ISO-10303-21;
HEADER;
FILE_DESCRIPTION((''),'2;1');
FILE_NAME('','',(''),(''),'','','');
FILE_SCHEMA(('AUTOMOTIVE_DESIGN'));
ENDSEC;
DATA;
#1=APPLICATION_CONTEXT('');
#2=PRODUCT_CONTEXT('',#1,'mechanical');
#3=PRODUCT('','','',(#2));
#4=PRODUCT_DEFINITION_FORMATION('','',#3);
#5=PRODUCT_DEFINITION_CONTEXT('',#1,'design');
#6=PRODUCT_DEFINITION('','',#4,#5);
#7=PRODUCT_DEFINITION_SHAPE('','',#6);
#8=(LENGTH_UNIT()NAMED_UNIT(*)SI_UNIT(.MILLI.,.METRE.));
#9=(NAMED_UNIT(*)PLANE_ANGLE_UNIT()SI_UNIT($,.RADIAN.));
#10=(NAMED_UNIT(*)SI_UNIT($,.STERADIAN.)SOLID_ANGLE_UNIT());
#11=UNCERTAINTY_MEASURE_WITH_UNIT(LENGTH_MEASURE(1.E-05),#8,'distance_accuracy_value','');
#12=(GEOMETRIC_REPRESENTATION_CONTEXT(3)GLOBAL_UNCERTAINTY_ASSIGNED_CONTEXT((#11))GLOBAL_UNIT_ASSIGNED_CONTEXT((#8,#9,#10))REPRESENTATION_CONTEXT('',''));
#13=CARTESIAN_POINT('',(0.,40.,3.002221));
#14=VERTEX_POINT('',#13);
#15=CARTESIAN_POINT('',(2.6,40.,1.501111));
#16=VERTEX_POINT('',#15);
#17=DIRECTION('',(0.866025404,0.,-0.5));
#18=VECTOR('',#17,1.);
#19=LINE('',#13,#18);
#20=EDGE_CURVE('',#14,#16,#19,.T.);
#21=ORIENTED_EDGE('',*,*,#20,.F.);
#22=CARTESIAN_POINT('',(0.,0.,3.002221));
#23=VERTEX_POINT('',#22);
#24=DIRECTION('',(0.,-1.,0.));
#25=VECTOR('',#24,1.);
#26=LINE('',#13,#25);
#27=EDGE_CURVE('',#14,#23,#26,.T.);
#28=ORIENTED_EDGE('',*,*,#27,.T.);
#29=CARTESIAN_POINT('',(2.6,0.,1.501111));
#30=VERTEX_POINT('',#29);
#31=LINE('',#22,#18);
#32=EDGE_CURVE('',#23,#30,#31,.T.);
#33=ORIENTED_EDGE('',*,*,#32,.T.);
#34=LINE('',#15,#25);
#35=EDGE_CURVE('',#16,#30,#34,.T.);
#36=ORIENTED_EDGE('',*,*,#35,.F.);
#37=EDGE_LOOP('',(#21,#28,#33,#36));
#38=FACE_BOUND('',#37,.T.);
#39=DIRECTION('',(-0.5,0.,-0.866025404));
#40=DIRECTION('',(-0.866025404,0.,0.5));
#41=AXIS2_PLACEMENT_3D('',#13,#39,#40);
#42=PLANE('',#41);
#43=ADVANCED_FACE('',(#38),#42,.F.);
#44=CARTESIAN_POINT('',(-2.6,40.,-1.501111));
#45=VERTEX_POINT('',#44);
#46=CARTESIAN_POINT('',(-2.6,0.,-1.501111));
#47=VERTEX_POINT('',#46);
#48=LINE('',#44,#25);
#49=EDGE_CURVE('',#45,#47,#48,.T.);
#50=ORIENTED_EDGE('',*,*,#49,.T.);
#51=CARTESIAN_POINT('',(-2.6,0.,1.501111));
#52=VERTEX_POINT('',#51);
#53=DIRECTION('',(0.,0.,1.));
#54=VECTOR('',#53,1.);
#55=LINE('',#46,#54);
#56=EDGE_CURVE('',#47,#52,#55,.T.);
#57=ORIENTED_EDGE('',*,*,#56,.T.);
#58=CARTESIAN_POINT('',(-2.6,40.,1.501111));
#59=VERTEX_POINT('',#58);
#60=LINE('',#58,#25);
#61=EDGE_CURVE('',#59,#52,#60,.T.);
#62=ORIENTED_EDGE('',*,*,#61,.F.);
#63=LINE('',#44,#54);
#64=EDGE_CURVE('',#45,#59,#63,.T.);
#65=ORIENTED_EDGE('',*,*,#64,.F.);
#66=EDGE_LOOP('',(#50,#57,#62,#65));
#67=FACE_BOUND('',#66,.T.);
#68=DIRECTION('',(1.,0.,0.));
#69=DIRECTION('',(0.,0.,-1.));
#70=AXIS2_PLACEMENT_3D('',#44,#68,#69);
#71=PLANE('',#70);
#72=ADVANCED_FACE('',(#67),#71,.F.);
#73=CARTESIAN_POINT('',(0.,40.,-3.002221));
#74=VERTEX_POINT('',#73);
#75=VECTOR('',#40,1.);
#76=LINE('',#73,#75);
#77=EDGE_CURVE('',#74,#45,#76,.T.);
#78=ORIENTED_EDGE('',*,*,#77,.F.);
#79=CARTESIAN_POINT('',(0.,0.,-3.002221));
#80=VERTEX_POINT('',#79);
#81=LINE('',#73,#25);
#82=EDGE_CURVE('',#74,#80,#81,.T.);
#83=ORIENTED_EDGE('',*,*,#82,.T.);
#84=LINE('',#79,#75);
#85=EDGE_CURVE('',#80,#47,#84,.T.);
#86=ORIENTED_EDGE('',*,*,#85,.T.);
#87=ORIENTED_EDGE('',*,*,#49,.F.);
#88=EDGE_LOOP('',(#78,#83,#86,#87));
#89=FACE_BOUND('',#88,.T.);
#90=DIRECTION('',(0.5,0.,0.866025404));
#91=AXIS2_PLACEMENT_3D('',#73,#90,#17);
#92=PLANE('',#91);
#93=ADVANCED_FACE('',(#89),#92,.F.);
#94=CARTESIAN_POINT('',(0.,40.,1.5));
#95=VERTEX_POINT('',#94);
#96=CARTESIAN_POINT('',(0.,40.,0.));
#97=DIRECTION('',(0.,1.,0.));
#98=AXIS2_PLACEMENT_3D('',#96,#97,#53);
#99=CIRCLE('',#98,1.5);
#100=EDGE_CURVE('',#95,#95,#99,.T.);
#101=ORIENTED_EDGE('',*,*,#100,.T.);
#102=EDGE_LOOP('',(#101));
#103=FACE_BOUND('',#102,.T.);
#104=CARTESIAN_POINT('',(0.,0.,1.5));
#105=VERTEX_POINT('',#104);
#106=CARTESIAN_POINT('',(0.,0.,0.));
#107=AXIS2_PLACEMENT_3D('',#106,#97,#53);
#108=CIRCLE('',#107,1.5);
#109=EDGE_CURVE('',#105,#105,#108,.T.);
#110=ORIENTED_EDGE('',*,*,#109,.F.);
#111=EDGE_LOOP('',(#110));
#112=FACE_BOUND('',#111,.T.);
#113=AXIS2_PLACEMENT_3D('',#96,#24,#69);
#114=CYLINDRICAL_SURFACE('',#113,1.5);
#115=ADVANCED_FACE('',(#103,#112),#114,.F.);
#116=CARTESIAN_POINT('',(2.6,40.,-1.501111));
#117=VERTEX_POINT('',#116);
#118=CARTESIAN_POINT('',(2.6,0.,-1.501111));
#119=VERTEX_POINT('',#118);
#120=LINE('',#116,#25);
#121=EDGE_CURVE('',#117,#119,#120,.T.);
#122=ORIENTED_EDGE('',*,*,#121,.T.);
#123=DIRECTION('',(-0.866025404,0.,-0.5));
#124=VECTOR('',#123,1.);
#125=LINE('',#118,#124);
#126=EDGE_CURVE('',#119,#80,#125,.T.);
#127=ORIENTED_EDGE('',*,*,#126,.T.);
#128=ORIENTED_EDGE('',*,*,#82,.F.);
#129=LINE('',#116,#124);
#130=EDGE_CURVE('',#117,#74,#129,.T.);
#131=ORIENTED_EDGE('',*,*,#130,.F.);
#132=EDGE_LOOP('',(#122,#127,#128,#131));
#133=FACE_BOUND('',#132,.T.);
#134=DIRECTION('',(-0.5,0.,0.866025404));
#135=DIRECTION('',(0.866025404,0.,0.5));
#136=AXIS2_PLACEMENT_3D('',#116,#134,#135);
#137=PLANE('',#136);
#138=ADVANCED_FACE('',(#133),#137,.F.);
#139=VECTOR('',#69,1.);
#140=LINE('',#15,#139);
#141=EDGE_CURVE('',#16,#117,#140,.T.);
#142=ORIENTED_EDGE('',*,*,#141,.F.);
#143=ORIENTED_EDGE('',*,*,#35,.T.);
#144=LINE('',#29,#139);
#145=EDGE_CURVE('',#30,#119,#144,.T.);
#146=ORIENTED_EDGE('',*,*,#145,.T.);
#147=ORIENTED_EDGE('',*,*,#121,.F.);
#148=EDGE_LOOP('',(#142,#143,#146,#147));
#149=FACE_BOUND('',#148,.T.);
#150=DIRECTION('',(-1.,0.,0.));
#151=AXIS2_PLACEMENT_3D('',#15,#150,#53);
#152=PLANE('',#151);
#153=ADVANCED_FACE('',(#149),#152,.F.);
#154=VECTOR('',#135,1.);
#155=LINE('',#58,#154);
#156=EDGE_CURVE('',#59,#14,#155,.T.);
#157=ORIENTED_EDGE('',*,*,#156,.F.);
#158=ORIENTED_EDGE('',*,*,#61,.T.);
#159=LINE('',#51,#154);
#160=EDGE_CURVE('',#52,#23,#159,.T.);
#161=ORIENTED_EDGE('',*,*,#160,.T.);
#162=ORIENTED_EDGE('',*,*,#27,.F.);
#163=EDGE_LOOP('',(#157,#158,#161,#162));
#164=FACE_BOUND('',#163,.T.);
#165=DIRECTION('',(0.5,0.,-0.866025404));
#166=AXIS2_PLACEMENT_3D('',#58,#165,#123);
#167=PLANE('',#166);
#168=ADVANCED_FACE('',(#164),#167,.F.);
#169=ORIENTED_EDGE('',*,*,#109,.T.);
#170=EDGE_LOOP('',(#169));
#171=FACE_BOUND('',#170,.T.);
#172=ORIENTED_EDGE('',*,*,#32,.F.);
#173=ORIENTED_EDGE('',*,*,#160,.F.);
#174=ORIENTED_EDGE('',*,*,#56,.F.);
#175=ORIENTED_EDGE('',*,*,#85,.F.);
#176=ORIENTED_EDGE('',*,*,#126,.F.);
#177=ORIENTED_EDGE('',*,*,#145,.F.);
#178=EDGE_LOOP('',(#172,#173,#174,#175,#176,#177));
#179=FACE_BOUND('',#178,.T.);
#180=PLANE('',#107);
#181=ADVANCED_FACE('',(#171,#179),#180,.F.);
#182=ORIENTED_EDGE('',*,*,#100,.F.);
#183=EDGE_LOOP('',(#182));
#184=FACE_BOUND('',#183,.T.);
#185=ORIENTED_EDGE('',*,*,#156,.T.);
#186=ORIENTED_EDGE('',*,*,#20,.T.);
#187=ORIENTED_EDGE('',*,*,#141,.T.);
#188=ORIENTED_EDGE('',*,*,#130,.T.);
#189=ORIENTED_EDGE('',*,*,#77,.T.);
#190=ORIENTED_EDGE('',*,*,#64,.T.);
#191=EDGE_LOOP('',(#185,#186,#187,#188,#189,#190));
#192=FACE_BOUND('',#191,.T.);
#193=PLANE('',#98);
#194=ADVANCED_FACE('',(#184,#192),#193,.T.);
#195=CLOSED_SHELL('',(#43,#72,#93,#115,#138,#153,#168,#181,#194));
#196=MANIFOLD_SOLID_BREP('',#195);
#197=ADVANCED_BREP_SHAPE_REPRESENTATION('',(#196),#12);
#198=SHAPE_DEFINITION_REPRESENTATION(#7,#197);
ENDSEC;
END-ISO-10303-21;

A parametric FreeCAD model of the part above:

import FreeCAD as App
import Part
import Sketcher
Q = App.Units.Quantity

doc = App.newDocument("Part")
body = doc.addObject("PartDesign::Body", "Body")

sketch1 = doc.addObject("Sketcher::SketchObject", "Sketch")
body.addObject(sketch1)
sketch1.AttachmentSupport = (doc.XZ_Plane, [""])
sketch1.MapMode = "FlatFace"
sketch1.addGeometry(Part.LineSegment(App.Vector(0, -3, 0), App.Vector(-2.6, -1.5, 0)), False)
sketch1.addGeometry(Part.LineSegment(App.Vector(-2.6, -1.5, 0), App.Vector(-2.6, 1.5, 0)), False)
sketch1.addGeometry(Part.LineSegment(App.Vector(-2.6, 1.5, 0), App.Vector(0, 3, 0)), False)
sketch1.addGeometry(Part.LineSegment(App.Vector(0, 3, 0), App.Vector(2.6, 1.5, 0)), False)
sketch1.addGeometry(Part.LineSegment(App.Vector(2.6, 1.5, 0), App.Vector(2.6, -1.5, 0)), False)
sketch1.addGeometry(Part.LineSegment(App.Vector(2.6, -1.5, 0), App.Vector(0, -3, 0)), False)
sketch1.addGeometry(Part.Circle(App.Vector(0, 0, 0), App.Vector(0, 0, 1), 1.5), False)
sketch1.addConstraint(Sketcher.Constraint("Coincident", 0, 2, 1, 1))
sketch1.addConstraint(Sketcher.Constraint("Coincident", 1, 2, 2, 1))
sketch1.addConstraint(Sketcher.Constraint("Coincident", 2, 2, 3, 1))
sketch1.addConstraint(Sketcher.Constraint("Coincident", 3, 2, 4, 1))
sketch1.addConstraint(Sketcher.Constraint("Coincident", 4, 2, 5, 1))
sketch1.addConstraint(Sketcher.Constraint("Coincident", 5, 2, 0, 1))
sketch1.addConstraint(Sketcher.Constraint("Vertical", 1))
sketch1.addConstraint(Sketcher.Constraint("Vertical", 4))
sketch1.addConstraint(Sketcher.Constraint("Coincident", 6, 3, -1, 1))
sketch1.addConstraint(Sketcher.Constraint("Symmetric", 0, 2, 3, 2, -1, 1))
sketch1.addConstraint(Sketcher.Constraint("Symmetric", 2, 2, 5, 2, -1, 1))
sketch1.addConstraint(Sketcher.Constraint("PointOnObject", 2, 2, -2))
sketch1.addConstraint(Sketcher.Constraint("Parallel", 2, 5))
sketch1.addConstraint(Sketcher.Constraint("Horizontal", 1, 2, 3, 2))
sketch1.addConstraint(Sketcher.Constraint("Diameter", 6, 3.0))
sketch1.addConstraint(Sketcher.Constraint("Angle", 0, Q("150 deg")))
sketch1.addConstraint(Sketcher.Constraint("DistanceX", 0, 2, -1, 1, 2.6))
sketch1.addConstraint(Sketcher.Constraint("DistanceY", 1, 1, 1, 2, 3.002221))
pad1 = doc.addObject("PartDesign::Pad", "Pad")
body.addObject(pad1)
pad1.Profile = sketch1
pad1.Length = 40
pad1.Reversed = True

doc.recompute()
